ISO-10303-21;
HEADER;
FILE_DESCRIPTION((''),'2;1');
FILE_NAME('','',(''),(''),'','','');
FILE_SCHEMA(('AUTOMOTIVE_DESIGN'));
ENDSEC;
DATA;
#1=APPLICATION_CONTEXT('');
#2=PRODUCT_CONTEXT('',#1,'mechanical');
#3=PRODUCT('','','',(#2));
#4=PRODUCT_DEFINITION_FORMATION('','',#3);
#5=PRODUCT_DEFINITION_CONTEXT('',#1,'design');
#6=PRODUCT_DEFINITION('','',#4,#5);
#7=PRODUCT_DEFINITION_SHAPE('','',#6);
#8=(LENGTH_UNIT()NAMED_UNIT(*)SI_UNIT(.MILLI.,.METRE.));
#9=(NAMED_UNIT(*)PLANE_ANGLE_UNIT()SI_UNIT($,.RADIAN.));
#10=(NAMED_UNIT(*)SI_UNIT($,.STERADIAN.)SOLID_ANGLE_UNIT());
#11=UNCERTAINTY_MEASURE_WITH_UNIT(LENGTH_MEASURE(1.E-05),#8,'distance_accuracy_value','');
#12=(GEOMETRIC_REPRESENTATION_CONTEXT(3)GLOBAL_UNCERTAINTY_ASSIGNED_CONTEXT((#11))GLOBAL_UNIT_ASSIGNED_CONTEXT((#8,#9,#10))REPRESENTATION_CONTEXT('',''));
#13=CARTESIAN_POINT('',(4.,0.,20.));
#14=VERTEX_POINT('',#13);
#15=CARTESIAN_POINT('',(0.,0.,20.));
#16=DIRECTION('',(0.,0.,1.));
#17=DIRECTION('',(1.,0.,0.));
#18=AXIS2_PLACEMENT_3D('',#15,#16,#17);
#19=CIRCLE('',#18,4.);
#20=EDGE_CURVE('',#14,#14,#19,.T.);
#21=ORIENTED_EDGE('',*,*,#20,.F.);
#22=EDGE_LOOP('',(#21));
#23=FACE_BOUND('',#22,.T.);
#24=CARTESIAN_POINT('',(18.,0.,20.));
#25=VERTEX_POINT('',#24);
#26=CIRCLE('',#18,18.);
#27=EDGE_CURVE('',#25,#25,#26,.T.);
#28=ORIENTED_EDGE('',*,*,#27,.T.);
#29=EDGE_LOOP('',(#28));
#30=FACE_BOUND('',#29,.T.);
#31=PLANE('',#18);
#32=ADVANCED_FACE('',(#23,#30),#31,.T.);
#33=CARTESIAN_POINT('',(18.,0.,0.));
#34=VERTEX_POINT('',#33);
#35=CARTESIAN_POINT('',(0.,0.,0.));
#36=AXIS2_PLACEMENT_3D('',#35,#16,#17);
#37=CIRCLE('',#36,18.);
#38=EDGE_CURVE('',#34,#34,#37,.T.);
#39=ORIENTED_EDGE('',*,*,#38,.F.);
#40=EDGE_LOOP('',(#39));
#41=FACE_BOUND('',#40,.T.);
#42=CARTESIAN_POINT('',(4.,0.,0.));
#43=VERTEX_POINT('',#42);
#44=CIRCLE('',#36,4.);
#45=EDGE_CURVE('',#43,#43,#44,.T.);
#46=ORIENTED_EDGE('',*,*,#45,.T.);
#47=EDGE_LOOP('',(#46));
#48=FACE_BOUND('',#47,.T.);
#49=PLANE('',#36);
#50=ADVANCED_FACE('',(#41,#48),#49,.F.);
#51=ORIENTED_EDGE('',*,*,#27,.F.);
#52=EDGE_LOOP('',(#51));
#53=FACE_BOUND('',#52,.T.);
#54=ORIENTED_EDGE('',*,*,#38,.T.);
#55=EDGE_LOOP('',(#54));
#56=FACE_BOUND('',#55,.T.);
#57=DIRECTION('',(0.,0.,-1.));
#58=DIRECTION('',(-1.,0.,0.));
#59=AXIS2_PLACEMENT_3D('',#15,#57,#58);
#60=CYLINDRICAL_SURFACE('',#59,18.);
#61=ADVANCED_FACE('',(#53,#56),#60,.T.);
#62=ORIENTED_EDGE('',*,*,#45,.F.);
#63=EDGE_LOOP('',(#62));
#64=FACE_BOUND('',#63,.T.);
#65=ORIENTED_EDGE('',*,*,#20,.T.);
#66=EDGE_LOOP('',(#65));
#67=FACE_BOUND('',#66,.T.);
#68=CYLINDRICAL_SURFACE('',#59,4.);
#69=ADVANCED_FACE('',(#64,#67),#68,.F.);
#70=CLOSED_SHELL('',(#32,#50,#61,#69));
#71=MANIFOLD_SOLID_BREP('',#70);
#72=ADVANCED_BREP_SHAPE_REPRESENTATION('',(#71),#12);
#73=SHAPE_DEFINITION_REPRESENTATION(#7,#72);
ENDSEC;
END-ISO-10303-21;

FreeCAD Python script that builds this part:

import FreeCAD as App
import Part
import Sketcher
Q = App.Units.Quantity

doc = App.newDocument("Part")
body = doc.addObject("PartDesign::Body", "Body")

sketch1 = body.newObject("Sketcher::SketchObject", "Sketch")
sketch1.AttachmentSupport = (doc.getObject("XY_Plane"), [""])
sketch1.MapMode = "FlatFace"
sketch1.addGeometry(Part.Circle(App.Vector(0, 0, 0), App.Vector(0, 0, 1), 18), False)
sketch1.addConstraint([
    Sketcher.Constraint("Coincident", 0, 3, -1, 1),
    Sketcher.Constraint("Diameter", 0, Q("36 mm")),
])
pad1 = body.newObject("PartDesign::Pad", "Pad")
pad1.Profile = sketch1
pad1.Length = 20

sketch2 = body.newObject("Sketcher::SketchObject", "Sketch001")
sketch2.AttachmentSupport = (doc.getObject("XY_Plane"), [""])
sketch2.MapMode = "FlatFace"
sketch2.addGeometry(Part.Circle(App.Vector(0, 0, 0), App.Vector(0, 0, 1), 4), False)
sketch2.addConstraint([
    Sketcher.Constraint("Coincident", 0, 3, -1, 1),
    Sketcher.Constraint("Diameter", 0, Q("8 mm")),
])
pocket1 = body.newObject("PartDesign::Pocket", "Pocket")
pocket1.Profile = sketch2
pocket1.Length = 20
pocket1.Reversed = True

doc.recompute()
